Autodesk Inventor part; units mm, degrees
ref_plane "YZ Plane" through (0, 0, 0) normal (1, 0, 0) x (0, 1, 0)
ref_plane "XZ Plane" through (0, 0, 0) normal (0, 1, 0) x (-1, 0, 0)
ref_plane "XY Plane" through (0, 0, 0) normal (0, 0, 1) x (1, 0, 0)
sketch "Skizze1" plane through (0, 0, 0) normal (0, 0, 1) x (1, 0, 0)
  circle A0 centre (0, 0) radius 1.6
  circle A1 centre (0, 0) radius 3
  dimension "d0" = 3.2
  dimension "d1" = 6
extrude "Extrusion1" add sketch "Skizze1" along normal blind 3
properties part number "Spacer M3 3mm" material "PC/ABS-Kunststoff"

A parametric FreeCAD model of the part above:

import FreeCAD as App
import Part
import Sketcher
from FreeCAD import Vector
Q = App.Units.Quantity

doc = App.newDocument("Part")
body = doc.addObject("PartDesign::Body", "Body")

# Sketch on XY plane
sketch1 = body.newObject("Sketcher::SketchObject", "Sketch")
sketch1.AttachmentSupport = (doc.getObject("XY_Plane"), [""])
sketch1.MapMode = "FlatFace"
sketch1.addGeometry(Part.Circle(Vector(0, 0, 0), Vector(0, 0, 1), 3), False)
sketch1.addGeometry(Part.Circle(Vector(0, 0, 0), Vector(0, 0, 1), 1.6), False)
sketch1.addConstraint(Sketcher.Constraint("Coincident", 0, 3, -1, 1))
sketch1.addConstraint(Sketcher.Constraint("Coincident", 1, 3, -1, 1))
sketch1.addConstraint(Sketcher.Constraint("Diameter", 0, Q("6 mm")))
sketch1.addConstraint(Sketcher.Constraint("Diameter", 1, Q("3.2 mm")))
pad1 = body.newObject("PartDesign::Pad", "Pad")
pad1.Profile = sketch1
pad1.Length = 3

doc.recompute()
